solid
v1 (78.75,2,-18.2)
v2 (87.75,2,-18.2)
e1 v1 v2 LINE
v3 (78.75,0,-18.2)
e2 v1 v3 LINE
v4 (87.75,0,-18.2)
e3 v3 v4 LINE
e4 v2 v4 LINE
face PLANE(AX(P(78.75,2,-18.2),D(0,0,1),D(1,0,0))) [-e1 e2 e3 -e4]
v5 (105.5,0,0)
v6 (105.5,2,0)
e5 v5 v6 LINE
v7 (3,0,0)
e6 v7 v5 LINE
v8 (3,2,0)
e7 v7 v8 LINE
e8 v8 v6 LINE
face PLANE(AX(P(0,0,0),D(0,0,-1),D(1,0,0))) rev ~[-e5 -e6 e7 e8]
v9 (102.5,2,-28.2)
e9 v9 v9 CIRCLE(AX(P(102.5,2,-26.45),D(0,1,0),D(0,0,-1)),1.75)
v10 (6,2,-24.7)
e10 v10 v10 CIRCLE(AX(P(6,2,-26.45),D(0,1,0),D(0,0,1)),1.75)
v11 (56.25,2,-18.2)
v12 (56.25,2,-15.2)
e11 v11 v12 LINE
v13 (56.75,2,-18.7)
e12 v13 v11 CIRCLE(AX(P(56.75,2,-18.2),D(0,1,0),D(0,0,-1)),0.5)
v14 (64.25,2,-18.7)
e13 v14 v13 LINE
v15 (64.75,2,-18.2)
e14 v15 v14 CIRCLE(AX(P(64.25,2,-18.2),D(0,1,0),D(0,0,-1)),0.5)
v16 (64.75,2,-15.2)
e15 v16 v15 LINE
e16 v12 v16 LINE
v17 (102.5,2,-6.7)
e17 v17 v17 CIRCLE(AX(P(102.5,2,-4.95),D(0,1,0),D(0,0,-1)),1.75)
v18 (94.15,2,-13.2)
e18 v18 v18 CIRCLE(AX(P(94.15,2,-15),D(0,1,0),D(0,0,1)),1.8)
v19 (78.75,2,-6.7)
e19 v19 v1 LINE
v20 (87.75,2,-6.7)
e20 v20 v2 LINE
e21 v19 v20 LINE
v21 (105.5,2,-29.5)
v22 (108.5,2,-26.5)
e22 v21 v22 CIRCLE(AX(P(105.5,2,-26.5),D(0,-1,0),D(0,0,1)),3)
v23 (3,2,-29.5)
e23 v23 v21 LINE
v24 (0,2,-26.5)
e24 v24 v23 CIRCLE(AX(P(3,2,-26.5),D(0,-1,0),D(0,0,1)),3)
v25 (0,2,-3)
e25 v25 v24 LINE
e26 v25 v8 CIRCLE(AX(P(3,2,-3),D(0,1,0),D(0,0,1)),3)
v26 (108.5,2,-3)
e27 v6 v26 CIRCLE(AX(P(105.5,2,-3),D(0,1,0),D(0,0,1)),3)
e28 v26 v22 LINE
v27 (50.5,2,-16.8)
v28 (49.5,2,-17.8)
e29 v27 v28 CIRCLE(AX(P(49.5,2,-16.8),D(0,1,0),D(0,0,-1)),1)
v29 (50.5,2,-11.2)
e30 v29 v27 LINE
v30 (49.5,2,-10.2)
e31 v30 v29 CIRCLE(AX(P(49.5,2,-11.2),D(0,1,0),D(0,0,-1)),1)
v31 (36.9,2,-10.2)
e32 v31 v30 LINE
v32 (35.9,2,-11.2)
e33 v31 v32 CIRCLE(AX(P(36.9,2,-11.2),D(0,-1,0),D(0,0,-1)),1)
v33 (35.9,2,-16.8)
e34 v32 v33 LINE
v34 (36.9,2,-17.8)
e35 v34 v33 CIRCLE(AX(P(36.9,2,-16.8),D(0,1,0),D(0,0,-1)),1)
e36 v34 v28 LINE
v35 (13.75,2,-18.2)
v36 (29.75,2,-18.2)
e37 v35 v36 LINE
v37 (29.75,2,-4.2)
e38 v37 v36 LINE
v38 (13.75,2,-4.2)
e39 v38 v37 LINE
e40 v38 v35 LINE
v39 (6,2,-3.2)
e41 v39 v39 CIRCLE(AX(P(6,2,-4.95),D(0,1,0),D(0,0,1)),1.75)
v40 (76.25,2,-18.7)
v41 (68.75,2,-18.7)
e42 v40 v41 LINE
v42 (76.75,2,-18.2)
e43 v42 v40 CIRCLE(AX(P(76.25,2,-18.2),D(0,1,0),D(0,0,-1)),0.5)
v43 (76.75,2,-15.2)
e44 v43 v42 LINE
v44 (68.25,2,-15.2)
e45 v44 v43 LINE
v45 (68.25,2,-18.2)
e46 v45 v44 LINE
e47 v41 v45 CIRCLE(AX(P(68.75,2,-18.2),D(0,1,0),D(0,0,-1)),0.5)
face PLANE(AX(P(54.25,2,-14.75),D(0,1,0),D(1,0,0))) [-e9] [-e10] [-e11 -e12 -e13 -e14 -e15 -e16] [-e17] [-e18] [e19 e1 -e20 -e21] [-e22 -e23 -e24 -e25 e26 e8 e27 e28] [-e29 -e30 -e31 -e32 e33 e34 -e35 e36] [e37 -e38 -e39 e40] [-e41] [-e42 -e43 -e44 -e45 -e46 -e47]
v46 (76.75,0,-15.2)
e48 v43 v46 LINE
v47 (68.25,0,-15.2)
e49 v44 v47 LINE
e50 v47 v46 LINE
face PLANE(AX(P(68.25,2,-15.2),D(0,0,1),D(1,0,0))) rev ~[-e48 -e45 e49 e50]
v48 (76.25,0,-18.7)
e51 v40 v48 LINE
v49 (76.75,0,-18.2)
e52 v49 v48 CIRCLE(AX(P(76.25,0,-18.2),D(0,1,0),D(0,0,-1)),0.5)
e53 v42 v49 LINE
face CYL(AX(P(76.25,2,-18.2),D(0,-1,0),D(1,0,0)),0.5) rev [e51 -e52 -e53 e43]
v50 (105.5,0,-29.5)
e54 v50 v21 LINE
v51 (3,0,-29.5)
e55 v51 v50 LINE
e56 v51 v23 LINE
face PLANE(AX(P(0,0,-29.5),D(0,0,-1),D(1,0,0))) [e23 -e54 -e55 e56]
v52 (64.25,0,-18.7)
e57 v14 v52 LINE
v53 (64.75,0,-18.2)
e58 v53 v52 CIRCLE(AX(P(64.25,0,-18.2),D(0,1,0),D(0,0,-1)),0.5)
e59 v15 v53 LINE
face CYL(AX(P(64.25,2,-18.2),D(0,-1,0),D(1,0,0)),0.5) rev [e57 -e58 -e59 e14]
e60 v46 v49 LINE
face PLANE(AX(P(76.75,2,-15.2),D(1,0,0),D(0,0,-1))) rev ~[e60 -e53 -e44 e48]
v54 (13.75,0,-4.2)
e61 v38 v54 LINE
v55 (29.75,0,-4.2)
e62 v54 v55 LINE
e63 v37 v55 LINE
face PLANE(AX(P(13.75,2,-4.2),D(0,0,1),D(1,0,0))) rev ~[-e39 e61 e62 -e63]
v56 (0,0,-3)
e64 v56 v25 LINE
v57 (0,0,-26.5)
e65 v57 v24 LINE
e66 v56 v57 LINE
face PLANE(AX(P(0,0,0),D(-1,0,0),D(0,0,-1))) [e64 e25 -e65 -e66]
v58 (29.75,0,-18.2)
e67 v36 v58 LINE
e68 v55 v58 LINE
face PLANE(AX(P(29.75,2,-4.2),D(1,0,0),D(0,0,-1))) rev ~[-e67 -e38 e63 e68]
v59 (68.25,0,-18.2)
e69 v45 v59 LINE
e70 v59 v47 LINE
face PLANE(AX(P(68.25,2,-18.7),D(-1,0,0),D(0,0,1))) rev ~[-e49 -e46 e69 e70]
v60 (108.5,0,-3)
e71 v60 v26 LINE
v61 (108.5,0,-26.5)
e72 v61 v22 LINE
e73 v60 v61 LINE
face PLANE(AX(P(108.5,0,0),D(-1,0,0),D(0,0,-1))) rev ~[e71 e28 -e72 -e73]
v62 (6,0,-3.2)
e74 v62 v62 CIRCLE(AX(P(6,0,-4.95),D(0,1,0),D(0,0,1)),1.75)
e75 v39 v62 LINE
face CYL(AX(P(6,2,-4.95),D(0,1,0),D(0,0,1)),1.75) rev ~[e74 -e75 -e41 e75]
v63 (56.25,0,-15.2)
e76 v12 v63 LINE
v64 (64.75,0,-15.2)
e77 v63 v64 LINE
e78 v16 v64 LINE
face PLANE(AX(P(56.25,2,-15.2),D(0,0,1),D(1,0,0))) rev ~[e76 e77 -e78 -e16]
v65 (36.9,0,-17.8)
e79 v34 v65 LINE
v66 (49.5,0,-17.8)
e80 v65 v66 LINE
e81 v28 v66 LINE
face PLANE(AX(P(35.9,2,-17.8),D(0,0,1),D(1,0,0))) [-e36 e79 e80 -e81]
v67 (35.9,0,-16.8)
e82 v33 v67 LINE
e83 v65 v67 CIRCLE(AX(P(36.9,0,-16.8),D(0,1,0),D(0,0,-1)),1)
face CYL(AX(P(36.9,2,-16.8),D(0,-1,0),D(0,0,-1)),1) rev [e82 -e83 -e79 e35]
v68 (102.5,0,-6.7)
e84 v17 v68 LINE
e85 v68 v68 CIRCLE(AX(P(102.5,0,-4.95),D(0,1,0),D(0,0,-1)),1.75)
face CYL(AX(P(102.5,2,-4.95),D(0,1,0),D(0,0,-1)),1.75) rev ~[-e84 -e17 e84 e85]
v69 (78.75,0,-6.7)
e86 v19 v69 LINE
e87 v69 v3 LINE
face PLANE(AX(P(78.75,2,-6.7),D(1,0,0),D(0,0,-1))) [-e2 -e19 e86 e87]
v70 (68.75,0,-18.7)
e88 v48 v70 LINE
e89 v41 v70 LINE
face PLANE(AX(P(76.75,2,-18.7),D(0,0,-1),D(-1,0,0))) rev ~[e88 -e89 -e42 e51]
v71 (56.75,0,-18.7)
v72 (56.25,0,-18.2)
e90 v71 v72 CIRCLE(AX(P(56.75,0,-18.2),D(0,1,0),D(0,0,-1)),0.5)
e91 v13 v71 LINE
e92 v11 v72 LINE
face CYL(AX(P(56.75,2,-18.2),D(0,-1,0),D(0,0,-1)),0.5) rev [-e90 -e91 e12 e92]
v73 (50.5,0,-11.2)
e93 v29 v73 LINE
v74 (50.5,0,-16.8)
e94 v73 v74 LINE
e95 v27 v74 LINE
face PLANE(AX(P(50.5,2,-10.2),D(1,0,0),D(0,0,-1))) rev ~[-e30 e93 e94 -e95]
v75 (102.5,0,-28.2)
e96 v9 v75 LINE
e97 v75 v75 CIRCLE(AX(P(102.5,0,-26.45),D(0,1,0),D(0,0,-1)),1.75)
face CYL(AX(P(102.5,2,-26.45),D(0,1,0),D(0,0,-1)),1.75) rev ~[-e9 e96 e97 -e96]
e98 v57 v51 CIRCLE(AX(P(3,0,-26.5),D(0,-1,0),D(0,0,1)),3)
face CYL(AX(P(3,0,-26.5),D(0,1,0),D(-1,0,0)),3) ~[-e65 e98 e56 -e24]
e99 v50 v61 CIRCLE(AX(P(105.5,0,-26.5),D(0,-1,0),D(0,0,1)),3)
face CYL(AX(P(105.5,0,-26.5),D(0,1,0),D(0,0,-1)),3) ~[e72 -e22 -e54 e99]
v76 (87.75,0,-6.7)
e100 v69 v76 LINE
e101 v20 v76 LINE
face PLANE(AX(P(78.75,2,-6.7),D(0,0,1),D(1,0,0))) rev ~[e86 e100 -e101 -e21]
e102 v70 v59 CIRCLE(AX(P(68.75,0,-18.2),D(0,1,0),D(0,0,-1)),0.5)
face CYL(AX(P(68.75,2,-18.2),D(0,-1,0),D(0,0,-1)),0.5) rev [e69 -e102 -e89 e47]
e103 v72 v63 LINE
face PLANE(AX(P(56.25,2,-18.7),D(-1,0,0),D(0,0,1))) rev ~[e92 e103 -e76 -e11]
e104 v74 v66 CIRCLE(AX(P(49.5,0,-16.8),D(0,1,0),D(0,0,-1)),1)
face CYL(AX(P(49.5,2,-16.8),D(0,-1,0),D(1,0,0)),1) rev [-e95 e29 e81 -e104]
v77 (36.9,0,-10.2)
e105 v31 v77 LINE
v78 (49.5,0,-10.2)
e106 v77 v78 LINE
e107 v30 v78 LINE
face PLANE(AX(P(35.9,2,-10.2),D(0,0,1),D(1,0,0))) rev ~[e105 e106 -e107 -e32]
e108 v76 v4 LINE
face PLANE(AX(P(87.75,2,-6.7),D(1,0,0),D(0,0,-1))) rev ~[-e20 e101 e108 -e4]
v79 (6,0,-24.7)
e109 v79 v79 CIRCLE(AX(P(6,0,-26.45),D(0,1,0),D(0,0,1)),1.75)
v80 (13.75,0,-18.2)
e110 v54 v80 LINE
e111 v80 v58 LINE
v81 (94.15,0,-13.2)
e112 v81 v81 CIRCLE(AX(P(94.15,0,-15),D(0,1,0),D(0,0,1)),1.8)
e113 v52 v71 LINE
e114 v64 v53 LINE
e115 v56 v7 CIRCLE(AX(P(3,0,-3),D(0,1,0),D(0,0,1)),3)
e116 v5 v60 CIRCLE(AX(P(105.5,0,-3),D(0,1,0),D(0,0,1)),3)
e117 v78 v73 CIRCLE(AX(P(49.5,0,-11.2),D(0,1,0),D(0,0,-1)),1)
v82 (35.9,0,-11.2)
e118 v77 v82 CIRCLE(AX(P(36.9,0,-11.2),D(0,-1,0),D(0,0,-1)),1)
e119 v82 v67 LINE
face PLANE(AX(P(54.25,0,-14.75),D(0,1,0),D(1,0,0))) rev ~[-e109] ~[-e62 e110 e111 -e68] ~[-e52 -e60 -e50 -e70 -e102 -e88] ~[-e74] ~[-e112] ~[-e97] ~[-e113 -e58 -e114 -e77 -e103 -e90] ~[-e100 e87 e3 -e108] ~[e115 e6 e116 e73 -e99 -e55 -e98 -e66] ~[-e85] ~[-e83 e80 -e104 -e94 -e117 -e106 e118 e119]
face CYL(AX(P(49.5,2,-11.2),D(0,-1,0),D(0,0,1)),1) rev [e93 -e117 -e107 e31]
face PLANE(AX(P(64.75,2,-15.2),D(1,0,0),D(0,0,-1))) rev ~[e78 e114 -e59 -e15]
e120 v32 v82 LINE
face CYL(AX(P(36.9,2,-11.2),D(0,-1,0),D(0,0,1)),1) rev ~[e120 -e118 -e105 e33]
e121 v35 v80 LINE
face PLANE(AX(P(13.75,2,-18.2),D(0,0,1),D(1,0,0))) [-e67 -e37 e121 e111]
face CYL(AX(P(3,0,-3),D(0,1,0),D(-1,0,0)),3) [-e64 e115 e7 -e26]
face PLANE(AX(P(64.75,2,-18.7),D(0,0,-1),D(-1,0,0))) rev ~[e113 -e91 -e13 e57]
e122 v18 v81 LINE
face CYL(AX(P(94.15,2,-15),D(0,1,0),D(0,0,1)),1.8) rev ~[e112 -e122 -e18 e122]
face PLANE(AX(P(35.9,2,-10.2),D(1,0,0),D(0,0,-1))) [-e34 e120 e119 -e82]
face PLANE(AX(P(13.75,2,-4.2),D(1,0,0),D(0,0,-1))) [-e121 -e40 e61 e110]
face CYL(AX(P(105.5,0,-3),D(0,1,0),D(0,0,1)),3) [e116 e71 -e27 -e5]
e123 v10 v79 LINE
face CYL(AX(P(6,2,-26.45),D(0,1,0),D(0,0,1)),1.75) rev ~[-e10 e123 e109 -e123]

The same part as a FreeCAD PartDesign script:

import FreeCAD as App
import Part
import Sketcher

V = App.Vector


def edges_at(feature, points):
    """Names of the edges that pass closest to the given points."""
    edges = feature.Shape.Edges
    near = lambda p: min(range(len(edges)), key=lambda i: edges[i].distToShape(Part.Vertex(*p))[0])
    return sorted({f"Edge{near(p) + 1}" for p in points})


def add_polygon(sketch, points):
    """Adds a closed chain of lines whose ends are joined by coincident constraints."""
    first, n = sketch.GeometryCount, len(points)
    for a, b in zip(points, points[1:] + points[:1]):
        sketch.addGeometry(Part.LineSegment(App.Vector(*a, 0), App.Vector(*b, 0)), False)
    for i in range(n):
        sketch.addConstraint(Sketcher.Constraint("Coincident", first + i, 2, first + (i + 1) % n, 1))

doc = App.newDocument("Part")
body = doc.addObject("PartDesign::Body", "Body")

# Sketch on XZ plane
sketch1 = body.newObject("Sketcher::SketchObject", "Sketch")
sketch1.AttachmentSupport = (doc.getObject("XZ_Plane"), [""])
sketch1.MapMode = "FlatFace"
add_polygon(sketch1, [(0, -30), (0, 0), (108, 0), (108, -30)])  # lines 0-3
sketch1.addConstraint(Sketcher.Constraint("Vertical", 0))
sketch1.addConstraint(Sketcher.Constraint("Horizontal", 1))
sketch1.addConstraint(Sketcher.Constraint("Vertical", 2))
sketch1.addConstraint(Sketcher.Constraint("Horizontal", 3))
sketch1.addConstraint(Sketcher.Constraint("Coincident", 0, 2, -1, 1))
sketch1.addConstraint(Sketcher.Constraint("DistanceX", 1, 1, 1, 2, 108.5))
sketch1.addConstraint(Sketcher.Constraint("DistanceY", 0, 1, 0, 2, 29.5))
pad1 = body.newObject("PartDesign::Pad", "Pad")
pad1.Profile = sketch1
pad1.Length = 2
pad1.Reversed = True

# Sketch on XZ plane
sketch2 = body.newObject("Sketcher::SketchObject", "Sketch001")
sketch2.AttachmentSupport = (doc.getObject("XZ_Plane"), [""])
sketch2.MapMode = "FlatFace"
sketch2.AttachmentOffset = App.Placement(V(0, 0, -2), App.Rotation())
sketch2.addGeometry(Part.Circle(V(6, -26.4, 0), V(0, 0, 1), 1.8), False)
sketch2.addGeometry(Part.Circle(V(6, -5, 0), V(0, 0, 1), 1.8), False)
sketch2.addGeometry(Part.Circle(V(102.5, -5, 0), V(0, 0, 1), 1.8), False)
sketch2.addGeometry(Part.Circle(V(102.5, -26.4, 0), V(0, 0, 1), 1.8), False)
sketch2.addConstraint(Sketcher.Constraint("Equal", 0, 1))
sketch2.addConstraint(Sketcher.Constraint("Equal", 1, 2))
sketch2.addConstraint(Sketcher.Constraint("Equal", 2, 3))
sketch2.addConstraint(Sketcher.Constraint("Horizontal", 1, 3, 2, 3))
sketch2.addConstraint(Sketcher.Constraint("Horizontal", 0, 3, 3, 3))
sketch2.addConstraint(Sketcher.Constraint("Vertical", 0, 3, 1, 3))
sketch2.addConstraint(Sketcher.Constraint("Vertical", 2, 3, 3, 3))
sketch2.addConstraint(Sketcher.Constraint("Diameter", 0, 3.5))
sketch2.addConstraint(Sketcher.Constraint("DistanceX", -1, 1, 0, 3, 6.0))
sketch2.addConstraint(Sketcher.Constraint("DistanceX", -1, 1, 2, 3, 102.5))
sketch2.addConstraint(Sketcher.Constraint("DistanceY", 0, 3, 1, 3, 21.5))
sketch2.addConstraint(Sketcher.Constraint("DistanceY", 0, 3, -1, 1, 26.45))
pocket1 = body.newObject("PartDesign::Pocket", "Pocket")
pocket1.Profile = sketch2
pocket1.Type = "ThroughAll"
pocket1.Reversed = True
doc.recompute()

fillet = body.newObject("PartDesign::Fillet", "Fillet")
fillet.Base = (pocket1, edges_at(pocket1, [
    (0, 1, -29.5),
    (108.5, 1, -29.5),
    (108.5, 1, 0),
    (0, 1, 0),
]))
fillet.Radius = 3

# Sketch on XZ plane
sketch3 = body.newObject("Sketcher::SketchObject", "Sketch002")
sketch3.AttachmentSupport = (doc.getObject("XZ_Plane"), [""])
sketch3.MapMode = "FlatFace"
sketch3.AttachmentOffset = App.Placement(V(0, 0, -2), App.Rotation())
sketch3.addGeometry(Part.Circle(V(94.2, -15, 0), V(0, 0, 1), 1.8), False)  # 0
add_polygon(sketch3, [(13.8, -18.2), (13.8, -4.2), (29.8, -4.2), (29.8, -18.2)])  # lines 1-4
add_polygon(sketch3, [(35.9, -17.8), (35.9, -10.2), (50.5, -10.2), (50.5, -17.8)])  # lines 5-8
add_polygon(sketch3, [(56.2, -15.2), (64.8, -15.2), (64.8, -18.7), (56.2, -18.7)])  # lines 9-12
add_polygon(sketch3, [(68.2, -15.2), (76.8, -15.2), (76.8, -18.7), (68.2, -18.7)])  # lines 13-16
add_polygon(sketch3, [(78.8, -18.2), (78.8, -6.7), (87.8, -6.7), (87.8, -18.2)])  # lines 17-20
sketch3.addConstraint(Sketcher.Constraint("Vertical", 1))
sketch3.addConstraint(Sketcher.Constraint("Horizontal", 2))
sketch3.addConstraint(Sketcher.Constraint("Vertical", 3))
sketch3.addConstraint(Sketcher.Constraint("Horizontal", 4))
sketch3.addConstraint(Sketcher.Constraint("Vertical", 5))
sketch3.addConstraint(Sketcher.Constraint("Horizontal", 6))
sketch3.addConstraint(Sketcher.Constraint("Vertical", 7))
sketch3.addConstraint(Sketcher.Constraint("Horizontal", 8))
sketch3.addConstraint(Sketcher.Constraint("Horizontal", 9))
sketch3.addConstraint(Sketcher.Constraint("Vertical", 10))
sketch3.addConstraint(Sketcher.Constraint("Horizontal", 11))
sketch3.addConstraint(Sketcher.Constraint("Vertical", 12))
sketch3.addConstraint(Sketcher.Constraint("Horizontal", 13))
sketch3.addConstraint(Sketcher.Constraint("Vertical", 14))
sketch3.addConstraint(Sketcher.Constraint("Horizontal", 15))
sketch3.addConstraint(Sketcher.Constraint("Vertical", 16))
sketch3.addConstraint(Sketcher.Constraint("Vertical", 17))
sketch3.addConstraint(Sketcher.Constraint("Horizontal", 18))
sketch3.addConstraint(Sketcher.Constraint("Vertical", 19))
sketch3.addConstraint(Sketcher.Constraint("Horizontal", 20))
sketch3.addConstraint(Sketcher.Constraint("Horizontal", 12, 2, 13, 2))
sketch3.addConstraint(Sketcher.Constraint("Horizontal", 11, 2, 14, 2))
sketch3.addConstraint(Sketcher.Constraint("Horizontal", 4, 2, 19, 2))
sketch3.addConstraint(Sketcher.Constraint("Equal", 11, 13))
sketch3.addConstraint(Sketcher.Constraint("Diameter", 0, 3.6))
sketch3.addConstraint(Sketcher.Constraint("DistanceX", 2, 1, 2, 2, 16.0))
sketch3.addConstraint(Sketcher.Constraint("DistanceX", 18, 1, 18, 2, 9.0))
sketch3.addConstraint(Sketcher.Constraint("DistanceY", 1, 1, 1, 2, 14.0))
sketch3.addConstraint(Sketcher.Constraint("DistanceX", 6, 1, 6, 2, 14.6))
sketch3.addConstraint(Sketcher.Constraint("DistanceX", 9, 1, 9, 2, 8.5))
sketch3.addConstraint(Sketcher.Constraint("DistanceY", 5, 1, 5, 2, 7.6))
sketch3.addConstraint(Sketcher.Constraint("DistanceY", 10, 2, 10, 1, 3.5))
sketch3.addConstraint(Sketcher.Constraint("DistanceY", 17, 1, 17, 2, 11.5))
sketch3.addConstraint(Sketcher.Constraint("DistanceY", 0, 3, -1, 1, 15.0))
sketch3.addConstraint(Sketcher.Constraint("DistanceY", 5, 2, 2, 2, 6.0))
sketch3.addConstraint(Sketcher.Constraint("DistanceY", 9, 2, 6, 2, 5.0))
sketch3.addConstraint(Sketcher.Constraint("DistanceX", 9, 2, 13, 2, 12.0))
sketch3.addConstraint(Sketcher.Constraint("DistanceX", 13, 2, 17, 2, 2.0))
sketch3.addConstraint(Sketcher.Constraint("DistanceY", 1, 2, -1, 1, 4.2))
sketch3.addConstraint(Sketcher.Constraint("DistanceX", -1, 1, 5, 2, 35.9))
sketch3.addConstraint(Sketcher.Constraint("DistanceX", 1, 2, 0, 3, 80.4))
sketch3.addConstraint(Sketcher.Constraint("DistanceX", 9, 2, 0, 3, 29.4))
sketch3.addConstraint(Sketcher.Constraint("DistanceX", -1, 1, 0, 3, 94.15))
pocket2 = body.newObject("PartDesign::Pocket", "Pocket001")
pocket2.Profile = sketch3
pocket2.Type = "ThroughAll"
pocket2.Reversed = True
doc.recompute()

fillet2 = body.newObject("PartDesign::Fillet", "Fillet001")
fillet2.Base = (pocket2, edges_at(pocket2, [
    (50.5, 1, -10.2),
    (35.9, 1, -10.2),
    (35.9, 1, -17.8),
    (50.5, 1, -17.8),
]))
fillet2.Radius = 1
doc.recompute()

fillet3 = body.newObject("PartDesign::Fillet", "Fillet002")
fillet3.Base = (fillet2, edges_at(fillet2, [
    (56.25, 1, -18.7),
    (64.75, 1, -18.7),
    (68.25, 1, -18.7),
    (76.75, 1, -18.7),
]))
fillet3.Radius = 0.5

doc.recompute()
